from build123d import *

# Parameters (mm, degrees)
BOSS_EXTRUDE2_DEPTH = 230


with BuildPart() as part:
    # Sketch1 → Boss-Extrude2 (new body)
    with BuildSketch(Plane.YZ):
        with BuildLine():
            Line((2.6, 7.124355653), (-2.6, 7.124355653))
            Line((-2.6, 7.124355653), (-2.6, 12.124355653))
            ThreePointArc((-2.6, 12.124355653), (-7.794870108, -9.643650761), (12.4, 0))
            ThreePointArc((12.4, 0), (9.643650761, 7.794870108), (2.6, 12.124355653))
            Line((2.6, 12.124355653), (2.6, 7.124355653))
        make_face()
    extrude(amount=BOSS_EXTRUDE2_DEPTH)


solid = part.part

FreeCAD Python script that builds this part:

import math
import FreeCAD as App
import Part
import Sketcher

V = App.Vector
Q = App.Units.Quantity

doc = App.newDocument("Part")
body = doc.addObject("PartDesign::Body", "Body")

# Sketch on YZ plane
sketch1 = body.newObject("Sketcher::SketchObject", "Sketch")
sketch1.AttachmentSupport = (doc.getObject("YZ_Plane"), [""])
sketch1.MapMode = "FlatFace"
sketch1.addGeometry([
    Part.LineSegment(V(2.6, 7.124356, 0), V(-2.6, 7.124356, 0)),  # 0
    Part.LineSegment(V(-2.6, 7.124356, 0), V(-2.6, 12.124356, 0)),  # 1
    Part.ArcOfCircle(Part.Circle(V(0, 0, 0), V(0, 0, 1), 12.4), math.radians(102.103449), math.radians(360)),  # 2
    Part.ArcOfCircle(Part.Circle(V(0, 0, 0), V(0, 0, 1), 12.4), math.radians(0), math.radians(77.896551)),  # 3
    Part.LineSegment(V(2.6, 12.124356, 0), V(2.6, 7.124356, 0)),  # 4
], False)
sketch1.addConstraint([
    Sketcher.Constraint("Coincident", 0, 2, 1, 1),
    Sketcher.Constraint("Coincident", 1, 2, 2, 1),
    Sketcher.Constraint("Tangent", 2, 2, 3, 1),
    Sketcher.Constraint("Coincident", 3, 2, 4, 1),
    Sketcher.Constraint("Coincident", 4, 2, 0, 1),
    Sketcher.Constraint("Horizontal", 0),
    Sketcher.Constraint("Vertical", 1),
    Sketcher.Constraint("Vertical", 4),
    Sketcher.Constraint("Coincident", 2, 3, -1, 1),
    Sketcher.Constraint("Equal", 2, 3),
    Sketcher.Constraint("PointOnObject", 2, 2, -1),
    Sketcher.Constraint("Horizontal", 1, 2, 3, 2),
    Sketcher.Constraint("Radius", 2, Q("12.4 mm")),
    Sketcher.Constraint("DistanceY", 1, 1, 1, 2, Q("5 mm")),
    Sketcher.Constraint("DistanceX", 0, 2, 0, 1, Q("5.2 mm")),
])
pad1 = body.newObject("PartDesign::Pad", "Pad")
pad1.Profile = sketch1
pad1.Length = 230

doc.recompute()
